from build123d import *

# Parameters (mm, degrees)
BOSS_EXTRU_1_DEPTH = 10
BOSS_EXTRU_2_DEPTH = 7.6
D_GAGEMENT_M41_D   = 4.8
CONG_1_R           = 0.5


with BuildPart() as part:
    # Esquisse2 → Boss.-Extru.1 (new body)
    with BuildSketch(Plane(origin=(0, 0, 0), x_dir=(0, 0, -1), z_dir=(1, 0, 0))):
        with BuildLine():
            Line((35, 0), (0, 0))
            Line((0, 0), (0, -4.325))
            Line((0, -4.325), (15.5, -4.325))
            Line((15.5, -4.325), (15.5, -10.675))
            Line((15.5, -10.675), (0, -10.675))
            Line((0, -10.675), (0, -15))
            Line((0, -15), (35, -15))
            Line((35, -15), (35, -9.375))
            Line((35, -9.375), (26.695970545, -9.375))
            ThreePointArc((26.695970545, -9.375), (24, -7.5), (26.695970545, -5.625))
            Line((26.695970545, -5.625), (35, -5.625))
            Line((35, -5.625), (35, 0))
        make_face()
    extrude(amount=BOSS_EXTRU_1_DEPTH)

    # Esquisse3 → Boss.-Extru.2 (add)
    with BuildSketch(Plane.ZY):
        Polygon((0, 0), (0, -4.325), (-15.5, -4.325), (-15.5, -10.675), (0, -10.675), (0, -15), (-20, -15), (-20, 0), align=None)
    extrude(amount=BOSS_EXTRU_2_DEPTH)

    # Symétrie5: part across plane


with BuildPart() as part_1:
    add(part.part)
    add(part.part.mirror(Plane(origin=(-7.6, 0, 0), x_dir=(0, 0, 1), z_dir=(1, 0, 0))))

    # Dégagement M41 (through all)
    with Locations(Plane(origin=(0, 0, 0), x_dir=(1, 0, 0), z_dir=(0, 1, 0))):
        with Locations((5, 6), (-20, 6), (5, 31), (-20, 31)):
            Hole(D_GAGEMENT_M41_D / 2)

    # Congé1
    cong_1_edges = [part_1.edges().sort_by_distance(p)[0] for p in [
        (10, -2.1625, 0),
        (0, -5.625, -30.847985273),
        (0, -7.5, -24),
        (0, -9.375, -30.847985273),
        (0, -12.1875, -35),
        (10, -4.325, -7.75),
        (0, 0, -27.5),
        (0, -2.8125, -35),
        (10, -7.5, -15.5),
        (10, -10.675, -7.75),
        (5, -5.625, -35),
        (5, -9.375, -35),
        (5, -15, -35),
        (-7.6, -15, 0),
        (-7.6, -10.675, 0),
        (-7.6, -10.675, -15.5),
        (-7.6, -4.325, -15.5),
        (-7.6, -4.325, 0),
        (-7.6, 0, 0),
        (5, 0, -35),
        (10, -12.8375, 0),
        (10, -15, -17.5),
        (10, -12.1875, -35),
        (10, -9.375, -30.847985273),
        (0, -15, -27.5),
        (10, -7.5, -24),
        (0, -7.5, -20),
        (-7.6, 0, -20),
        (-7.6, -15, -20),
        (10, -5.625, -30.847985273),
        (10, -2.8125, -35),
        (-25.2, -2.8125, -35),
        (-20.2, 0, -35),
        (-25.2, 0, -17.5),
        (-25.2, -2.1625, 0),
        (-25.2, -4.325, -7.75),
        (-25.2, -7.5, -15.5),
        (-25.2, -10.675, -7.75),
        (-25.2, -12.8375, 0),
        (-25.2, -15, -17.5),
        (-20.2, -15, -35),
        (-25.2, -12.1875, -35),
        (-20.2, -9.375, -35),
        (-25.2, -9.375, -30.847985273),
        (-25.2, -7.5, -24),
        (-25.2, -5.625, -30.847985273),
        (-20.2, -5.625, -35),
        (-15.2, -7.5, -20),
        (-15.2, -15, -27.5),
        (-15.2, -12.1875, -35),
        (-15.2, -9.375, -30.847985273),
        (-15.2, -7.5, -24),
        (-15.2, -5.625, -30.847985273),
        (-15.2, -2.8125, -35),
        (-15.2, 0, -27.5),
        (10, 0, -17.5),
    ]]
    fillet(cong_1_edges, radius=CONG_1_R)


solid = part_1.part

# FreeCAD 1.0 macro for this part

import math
import FreeCAD as App
import Part
import Sketcher

V = App.Vector
Q = App.Units.Quantity


def edges_at(feature, points):
    """Names of the edges that pass closest to the given points."""
    edges = feature.Shape.Edges
    near = lambda p: min(range(len(edges)), key=lambda i: edges[i].distToShape(Part.Vertex(*p))[0])
    return sorted({f"Edge{near(p) + 1}" for p in points})


def add_polygon(sketch, points):
    """Adds a closed chain of lines whose ends are joined by coincident constraints."""
    first, n = sketch.GeometryCount, len(points)
    for a, b in zip(points, points[1:] + points[:1]):
        sketch.addGeometry(Part.LineSegment(App.Vector(*a, 0), App.Vector(*b, 0)), False)
    for i in range(n):
        sketch.addConstraint(Sketcher.Constraint("Coincident", first + i, 2, first + (i + 1) % n, 1))

doc = App.newDocument("Part")
params = doc.addObject("Spreadsheet::Sheet", "Params")
for row, (alias, value) in enumerate([
    ("sketch1_radius", "2 mm"),
    ("sketch1_height", "35 mm"),
    ("sketch1_height2", "15.5 mm"),
    ("sketch1_width", "6.35 mm"),
    ("pad1_length", "10 mm"),
    ("sketch2_width", "15 mm"),
    ("sketch2_height", "20 mm"),
    ("sketch2_height2", "15.5 mm"),
    ("sketch2_width2", "6.35 mm"),
    ("pad2_length", "7.6 mm"),
    ("sketch3_diameter", "4.8 mm"),
    ("hole_diameter", "4.8 mm"),
    ("fillet_radius", "0.5 mm"),
], start=1):
    params.set(f"A{row}", alias)
    params.set(f"B{row}", "=" + value)
    params.setAlias(f"B{row}", alias)

body = doc.addObject("PartDesign::Body", "Body")

# Sketch on YZ plane
sketch1 = body.newObject("Sketcher::SketchObject", "Sketch")
sketch1.AttachmentSupport = (doc.getObject("YZ_Plane"), [""])
sketch1.MapMode = "FlatFace"
sketch1.addGeometry([
    Part.LineSegment(V(0, -35, 0), V(0, 0, 0)),  # 0
    Part.LineSegment(V(0, 0, 0), V(-4.3, 0, 0)),  # 1
    Part.LineSegment(V(-4.3, 0, 0), V(-4.3, -15.5, 0)),  # 2
    Part.LineSegment(V(-4.3, -15.5, 0), V(-10.7, -15.5, 0)),  # 3
    Part.LineSegment(V(-10.7, -15.5, 0), V(-10.7, 0, 0)),  # 4
    Part.LineSegment(V(-10.7, 0, 0), V(-15, 0, 0)),  # 5
    Part.LineSegment(V(-15, 0, 0), V(-15, -35, 0)),  # 6
    Part.LineSegment(V(-15, -35, 0), V(-9.4, -35, 0)),  # 7
    Part.LineSegment(V(-9.4, -35, 0), V(-9.4, -26.7, 0)),  # 8
    Part.ArcOfCircle(Part.Circle(V(-7.5, -26, 0), V(0, 0, 1), 2), math.radians(-20), math.radians(200)),  # 9
    Part.LineSegment(V(-5.6, -26.7, 0), V(-5.6, -35, 0)),  # 10
    Part.LineSegment(V(-5.6, -35, 0), V(0, -35, 0)),  # 11
], False)
sketch1.addConstraint([
    Sketcher.Constraint("Coincident", 0, 2, 1, 1),
    Sketcher.Constraint("Coincident", 1, 2, 2, 1),
    Sketcher.Constraint("Coincident", 2, 2, 3, 1),
    Sketcher.Constraint("Coincident", 3, 2, 4, 1),
    Sketcher.Constraint("Coincident", 4, 2, 5, 1),
    Sketcher.Constraint("Coincident", 5, 2, 6, 1),
    Sketcher.Constraint("Coincident", 6, 2, 7, 1),
    Sketcher.Constraint("Coincident", 7, 2, 8, 1),
    Sketcher.Constraint("Coincident", 8, 2, 9, 2),
    Sketcher.Constraint("Coincident", 9, 1, 10, 1),
    Sketcher.Constraint("Coincident", 10, 2, 11, 1),
    Sketcher.Constraint("Coincident", 11, 2, 0, 1),
    Sketcher.Constraint("Vertical", 0),
    Sketcher.Constraint("Horizontal", 1),
    Sketcher.Constraint("Vertical", 2),
    Sketcher.Constraint("Horizontal", 3),
    Sketcher.Constraint("Vertical", 4),
    Sketcher.Constraint("Horizontal", 5),
    Sketcher.Constraint("Vertical", 6),
    Sketcher.Constraint("Horizontal", 7),
    Sketcher.Constraint("Vertical", 8),
    Sketcher.Constraint("Vertical", 10),
    Sketcher.Constraint("Horizontal", 11),
    Sketcher.Constraint("Coincident", 0, 2, -1, 1),
    Sketcher.Constraint("PointOnObject", 4, 2, -1),
    Sketcher.Constraint("Horizontal", 8, 2, 9, 1),
    Sketcher.Constraint("Horizontal", 7, 2, 10, 2),
    Sketcher.Constraint("Equal", 1, 5),
    Sketcher.Constraint("Equal", 7, 11),
    Sketcher.Constraint("Radius", 9, Q("2 mm")),
    Sketcher.Constraint("DistanceY", 0, 1, 0, 2, Q("35 mm")),
    Sketcher.Constraint("DistanceY", 2, 2, 2, 1, Q("15.5 mm")),
    Sketcher.Constraint("DistanceY", 9, 3, -1, 1, Q("26 mm")),
    Sketcher.Constraint("DistanceX", 5, 2, -1, 1, Q("15 mm")),
    Sketcher.Constraint("DistanceX", 3, 2, 3, 1, Q("6.35 mm")),
    Sketcher.Constraint("DistanceX", 3, 2, 7, 2, Q("1.3 mm")),
])
sketch1.setExpression("Constraints[29]", "Params.sketch1_radius")
sketch1.setExpression("Constraints[30]", "Params.sketch1_height")
sketch1.setExpression("Constraints[31]", "Params.sketch1_height2")
sketch1.setExpression("Constraints[34]", "Params.sketch1_width")
pad1 = body.newObject("PartDesign::Pad", "Pad")
pad1.Profile = sketch1
pad1.setExpression("Length", "Params.pad1_length")

# Sketch on YZ plane
sketch2 = body.newObject("Sketcher::SketchObject", "Sketch001")
sketch2.AttachmentSupport = (doc.getObject("YZ_Plane"), [""])
sketch2.MapMode = "FlatFace"
add_polygon(sketch2, [(-4.3, 0), (0, 0), (0, -20), (-15, -20), (-15, 0), (-10.7, 0), (-10.7, -15.5), (-4.3, -15.5)])  # lines 0-7
sketch2.addConstraint([
    Sketcher.Constraint("Horizontal", 0),
    Sketcher.Constraint("Vertical", 1),
    Sketcher.Constraint("Horizontal", 2),
    Sketcher.Constraint("Vertical", 3),
    Sketcher.Constraint("Horizontal", 4),
    Sketcher.Constraint("Vertical", 5),
    Sketcher.Constraint("Horizontal", 6),
    Sketcher.Constraint("Vertical", 7),
    Sketcher.Constraint("Coincident", 0, 2, -1, 1),
    Sketcher.Constraint("PointOnObject", 3, 2, -1),
    Sketcher.Constraint("Equal", 0, 4),
    Sketcher.Constraint("DistanceX", 2, 2, 2, 1, Q("15 mm")),
    Sketcher.Constraint("DistanceY", 1, 2, 1, 1, Q("20 mm")),
    Sketcher.Constraint("DistanceY", 5, 2, 5, 1, Q("15.5 mm")),
    Sketcher.Constraint("DistanceX", 6, 1, 6, 2, Q("6.35 mm")),
])
sketch2.setExpression("Constraints[19]", "Params.sketch2_width")
sketch2.setExpression("Constraints[20]", "Params.sketch2_height")
sketch2.setExpression("Constraints[21]", "Params.sketch2_height2")
sketch2.setExpression("Constraints[22]", "Params.sketch2_width2")
pad2 = body.newObject("PartDesign::Pad", "Pad001")
pad2.Profile = sketch2
pad2.setExpression("Length", "Params.pad2_length")
pad2.Reversed = True
body2 = doc.addObject("PartDesign::Body", "Body001")
doc.recompute()

body2.BaseFeature = body
doc.recompute()

mirroring = doc.addObject("Part::Mirroring", "Mirroring")
mirroring.Source = body
mirroring.Base = V(-7.6, 0, 0)
mirroring.Normal = V(1, 0, 0)
body3 = doc.addObject("PartDesign::Body", "Body002")
body3.BaseFeature = mirroring
boolean = body2.newObject("PartDesign::Boolean", "Boolean")
boolean.Type = "Fuse"
boolean.addObjects([body3])
doc.recompute()

# Sketch on XZ plane
sketch3 = body2.newObject("Sketcher::SketchObject", "Sketch002")
sketch3.AttachmentSupport = (doc.getObject("XZ_Plane001"), [""])
sketch3.MapMode = "FlatFace"
sketch3.addGeometry([
    Part.Circle(V(5, -6, 0), V(0, 0, 1), 2.4),
    Part.Circle(V(-20, -6, 0), V(0, 0, 1), 2.4),
    Part.Circle(V(5, -31, 0), V(0, 0, 1), 2.4),
    Part.Circle(V(-20, -31, 0), V(0, 0, 1), 2.4),
], False)
sketch3.addConstraint([
    Sketcher.Constraint("Equal", 0, 1),
    Sketcher.Constraint("Equal", 1, 2),
    Sketcher.Constraint("Equal", 2, 3),
    Sketcher.Constraint("Horizontal", 0, 3, 1, 3),
    Sketcher.Constraint("Horizontal", 2, 3, 3, 3),
    Sketcher.Constraint("Vertical", 0, 3, 2, 3),
    Sketcher.Constraint("Vertical", 1, 3, 3, 3),
    Sketcher.Constraint("Diameter", 0, Q("4.8 mm")),
    Sketcher.Constraint("DistanceX", -1, 1, 0, 3, Q("5 mm")),
    Sketcher.Constraint("DistanceY", 0, 3, -1, 1, Q("6 mm")),
    Sketcher.Constraint("DistanceX", 1, 3, -1, 1, Q("20 mm")),
    Sketcher.Constraint("DistanceY", 2, 3, -1, 1, Q("31 mm")),
])
sketch3.setExpression("Constraints[7]", "Params.sketch3_diameter")
doc.recompute()
hole = body2.newObject("PartDesign::Hole", "Hole")
hole.Profile = sketch3
hole.ThreadType = "None"
hole.setExpression("Diameter", "Params.hole_diameter")
hole.DepthType = "ThroughAll"
hole.Reversed = True
doc.recompute()

fillet = body2.newObject("PartDesign::Fillet", "Fillet")
fillet.Base = (hole, edges_at(hole, [
    (10, -2.163, 0),
    (0, -5.625, -30.848),
    (0, -7.5, -24),
    (0, -9.375, -30.848),
    (0, -12.188, -35),
    (10, -4.325, -7.75),
    (0, 0, -27.5),
    (0, -2.812, -35),
    (10, -7.5, -15.5),
    (10, -10.675, -7.75),
    (5, -5.625, -35),
    (5, -9.375, -35),
    (5, -15, -35),
    (-7.6, -15, 0),
    (-7.6, -10.675, 0),
    (-7.6, -10.675, -15.5),
    (-7.6, -4.325, -15.5),
    (-7.6, -4.325, 0),
    (-7.6, 0, 0),
    (5, 0, -35),
    (10, -12.838, 0),
    (10, -15, -17.5),
    (10, -12.188, -35),
    (10, -9.375, -30.848),
    (0, -15, -27.5),
    (10, -7.5, -24),
    (0, -7.5, -20),
    (-7.6, 0, -20),
    (-7.6, -15, -20),
    (10, -5.625, -30.848),
    (10, -2.812, -35),
    (-25.2, -2.812, -35),
    (-20.2, 0, -35),
    (-25.2, 0, -17.5),
    (-25.2, -2.163, 0),
    (-25.2, -4.325, -7.75),
    (-25.2, -7.5, -15.5),
    (-25.2, -10.675, -7.75),
    (-25.2, -12.838, 0),
    (-25.2, -15, -17.5),
    (-20.2, -15, -35),
    (-25.2, -12.188, -35),
    (-20.2, -9.375, -35),
    (-25.2, -9.375, -30.848),
    (-25.2, -7.5, -24),
    (-25.2, -5.625, -30.848),
    (-20.2, -5.625, -35),
    (-15.2, -7.5, -20),
    (-15.2, -15, -27.5),
    (-15.2, -12.188, -35),
    (-15.2, -9.375, -30.848),
    (-15.2, -7.5, -24),
    (-15.2, -5.625, -30.848),
    (-15.2, -2.812, -35),
    (-15.2, 0, -27.5),
    (10, 0, -17.5),
]))
fillet.setExpression("Radius", "Params.fillet_radius")
mirroring.Visibility = False

doc.recompute()
